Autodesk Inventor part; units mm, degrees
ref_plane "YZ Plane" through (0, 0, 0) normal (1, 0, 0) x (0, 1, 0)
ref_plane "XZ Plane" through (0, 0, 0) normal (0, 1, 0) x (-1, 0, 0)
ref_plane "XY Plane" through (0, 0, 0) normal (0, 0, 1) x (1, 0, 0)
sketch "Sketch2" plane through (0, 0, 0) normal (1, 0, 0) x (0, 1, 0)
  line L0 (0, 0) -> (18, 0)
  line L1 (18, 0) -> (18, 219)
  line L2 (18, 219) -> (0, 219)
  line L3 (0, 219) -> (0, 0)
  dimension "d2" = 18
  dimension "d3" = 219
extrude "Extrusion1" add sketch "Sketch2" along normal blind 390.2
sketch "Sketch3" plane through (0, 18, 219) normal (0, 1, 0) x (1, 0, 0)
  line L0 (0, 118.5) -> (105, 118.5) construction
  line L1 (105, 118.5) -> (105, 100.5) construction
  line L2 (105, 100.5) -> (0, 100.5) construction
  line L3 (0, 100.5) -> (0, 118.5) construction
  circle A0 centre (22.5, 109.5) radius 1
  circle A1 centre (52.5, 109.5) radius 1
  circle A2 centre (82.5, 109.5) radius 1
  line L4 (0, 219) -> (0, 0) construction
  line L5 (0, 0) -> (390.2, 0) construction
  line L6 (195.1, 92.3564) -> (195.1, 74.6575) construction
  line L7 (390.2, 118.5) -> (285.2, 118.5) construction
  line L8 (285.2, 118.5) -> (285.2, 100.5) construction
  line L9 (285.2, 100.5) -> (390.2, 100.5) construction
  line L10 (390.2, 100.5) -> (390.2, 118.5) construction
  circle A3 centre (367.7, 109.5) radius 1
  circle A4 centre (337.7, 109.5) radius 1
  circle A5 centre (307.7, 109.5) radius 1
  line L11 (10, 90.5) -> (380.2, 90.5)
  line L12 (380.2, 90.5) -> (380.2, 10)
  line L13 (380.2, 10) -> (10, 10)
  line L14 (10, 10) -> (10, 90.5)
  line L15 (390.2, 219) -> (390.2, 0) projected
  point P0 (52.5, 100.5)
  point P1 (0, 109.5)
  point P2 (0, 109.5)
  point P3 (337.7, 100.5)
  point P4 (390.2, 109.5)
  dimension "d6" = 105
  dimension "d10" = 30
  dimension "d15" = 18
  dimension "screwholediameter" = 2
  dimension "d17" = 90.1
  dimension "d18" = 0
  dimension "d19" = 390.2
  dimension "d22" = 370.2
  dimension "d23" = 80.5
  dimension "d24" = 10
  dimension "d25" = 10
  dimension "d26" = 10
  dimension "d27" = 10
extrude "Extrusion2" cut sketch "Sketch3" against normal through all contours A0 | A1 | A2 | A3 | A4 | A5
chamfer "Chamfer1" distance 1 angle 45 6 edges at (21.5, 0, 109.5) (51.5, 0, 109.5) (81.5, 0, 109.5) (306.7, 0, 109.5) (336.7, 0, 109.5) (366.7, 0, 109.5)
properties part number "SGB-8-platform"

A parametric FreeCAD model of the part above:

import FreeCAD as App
import Part
import Sketcher
from FreeCAD import Vector
Q = App.Units.Quantity


def edges_at(feature, points):
    """Names of the edges that pass closest to the given points."""
    edges = feature.Shape.Edges
    near = lambda p: min(range(len(edges)), key=lambda i: edges[i].distToShape(Part.Vertex(*p))[0])
    return sorted({f"Edge{near(p) + 1}" for p in points})

doc = App.newDocument("Part")
body = doc.addObject("PartDesign::Body", "Body")

# Sketch on YZ plane
sketch1 = body.newObject("Sketcher::SketchObject", "Sketch")
sketch1.AttachmentSupport = (doc.getObject("YZ_Plane"), [""])
sketch1.MapMode = "FlatFace"
sketch1.addGeometry([
    Part.LineSegment(Vector(0, 219, 0), Vector(0, 0, 0)),
    Part.LineSegment(Vector(0, 0, 0), Vector(18, 0, 0)),
    Part.LineSegment(Vector(18, 0, 0), Vector(18, 219, 0)),
    Part.LineSegment(Vector(18, 219, 0), Vector(0, 219, 0)),
], False)
sketch1.addConstraint([
    Sketcher.Constraint("Coincident", 0, 2, 1, 1),
    Sketcher.Constraint("Coincident", 1, 2, 2, 1),
    Sketcher.Constraint("Coincident", 2, 2, 3, 1),
    Sketcher.Constraint("Coincident", 3, 2, 0, 1),
    Sketcher.Constraint("Vertical", 0),
    Sketcher.Constraint("Horizontal", 1),
    Sketcher.Constraint("Vertical", 2),
    Sketcher.Constraint("Horizontal", 3),
    Sketcher.Constraint("Coincident", 0, 2, -1, 1),
    Sketcher.Constraint("DistanceX", 1, 1, 1, 2, Q("18 mm")),
    Sketcher.Constraint("DistanceY", 0, 2, 0, 1, Q("219 mm")),
])
pad1 = body.newObject("PartDesign::Pad", "Pad")
pad1.Profile = sketch1
pad1.Length = 390.2

# Sketch on XZ plane
sketch2 = body.newObject("Sketcher::SketchObject", "Sketch001")
sketch2.AttachmentSupport = (doc.getObject("XZ_Plane"), [""])
sketch2.MapMode = "FlatFace"
sketch2.AttachmentOffset = App.Placement(Vector(0, 0, -18), App.Rotation())
sketch2.addGeometry([
    Part.Circle(Vector(22.5, 109.5, 0), Vector(0, 0, 1), 1),  # 0
    Part.Circle(Vector(52.5, 109.5, 0), Vector(0, 0, 1), 1),  # 1
    Part.Circle(Vector(82.5, 109.5, 0), Vector(0, 0, 1), 1),  # 2
    Part.Circle(Vector(367.7, 109.5, 0), Vector(0, 0, 1), 1),  # 3
    Part.Circle(Vector(337.7, 109.5, 0), Vector(0, 0, 1), 1),  # 4
    Part.Circle(Vector(307.7, 109.5, 0), Vector(0, 0, 1), 1),  # 5
], False)
sketch2.addConstraint([
    Sketcher.Constraint("Equal", 0, 1),
    Sketcher.Constraint("Equal", 1, 2),
    Sketcher.Constraint("Equal", 2, 3),
    Sketcher.Constraint("Equal", 3, 4),
    Sketcher.Constraint("Equal", 4, 5),
    Sketcher.Constraint("Horizontal", 0, 3, 1, 3),
    Sketcher.Constraint("Horizontal", 1, 3, 2, 3),
    Sketcher.Constraint("Horizontal", 2, 3, 3, 3),
    Sketcher.Constraint("Horizontal", 3, 3, 4, 3),
    Sketcher.Constraint("Horizontal", 4, 3, 5, 3),
    Sketcher.Constraint("Diameter", 0, Q("2 mm")),
    Sketcher.Constraint("DistanceX", 0, 3, 1, 3, Q("30 mm")),
    Sketcher.Constraint("DistanceX", 1, 3, 2, 3, Q("30 mm")),
    Sketcher.Constraint("DistanceX", 4, 3, 3, 3, Q("30 mm")),
    Sketcher.Constraint("DistanceX", 5, 3, 4, 3, Q("30 mm")),
    Sketcher.Constraint("DistanceX", -1, 1, 0, 3, Q("22.5 mm")),
    Sketcher.Constraint("DistanceY", -1, 1, 0, 3, Q("109.5 mm")),
    Sketcher.Constraint("DistanceX", -1, 1, 3, 3, Q("367.7 mm")),
])
pocket1 = body.newObject("PartDesign::Pocket", "Pocket")
pocket1.Profile = sketch2
pocket1.Type = "ThroughAll"
pocket1.Reversed = True
doc.recompute()

chamfer = body.newObject("PartDesign::Chamfer", "Chamfer")
chamfer.Base = (pocket1, edges_at(pocket1, [
    (21.5, 0, 109.5),
    (51.5, 0, 109.5),
    (81.5, 0, 109.5),
    (306.7, 0, 109.5),
    (336.7, 0, 109.5),
    (366.7, 0, 109.5),
]))
chamfer.Size = 1

doc.recompute()
